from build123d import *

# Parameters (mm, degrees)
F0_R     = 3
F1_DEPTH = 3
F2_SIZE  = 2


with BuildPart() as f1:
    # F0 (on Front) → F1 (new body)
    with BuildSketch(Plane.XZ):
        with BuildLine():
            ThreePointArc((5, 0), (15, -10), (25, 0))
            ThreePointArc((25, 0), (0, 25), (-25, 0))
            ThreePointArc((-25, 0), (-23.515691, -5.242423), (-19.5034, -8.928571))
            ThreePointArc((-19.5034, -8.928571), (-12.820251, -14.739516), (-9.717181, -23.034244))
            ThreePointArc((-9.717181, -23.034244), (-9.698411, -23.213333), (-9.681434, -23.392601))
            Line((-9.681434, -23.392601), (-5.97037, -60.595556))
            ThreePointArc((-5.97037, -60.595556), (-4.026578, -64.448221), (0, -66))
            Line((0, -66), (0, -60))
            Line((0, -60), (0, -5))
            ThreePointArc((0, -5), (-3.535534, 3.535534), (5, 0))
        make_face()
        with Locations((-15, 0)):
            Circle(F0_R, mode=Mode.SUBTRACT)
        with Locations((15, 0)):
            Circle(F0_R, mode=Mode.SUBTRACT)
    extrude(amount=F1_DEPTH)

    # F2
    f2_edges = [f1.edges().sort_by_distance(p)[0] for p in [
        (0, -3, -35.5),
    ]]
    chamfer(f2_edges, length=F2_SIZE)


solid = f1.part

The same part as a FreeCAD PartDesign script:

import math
import FreeCAD as App
import Part
import Sketcher
from FreeCAD import Vector


def edges_at(feature, points):
    """Names of the edges that pass closest to the given points."""
    edges = feature.Shape.Edges
    near = lambda p: min(range(len(edges)), key=lambda i: edges[i].distToShape(Part.Vertex(*p))[0])
    return sorted({f"Edge{near(p) + 1}" for p in points})

doc = App.newDocument("Part")
body = doc.addObject("PartDesign::Body", "Body")

# Sketch on XZ plane
sketch1 = doc.addObject("Sketcher::SketchObject", "Sketch")
body.addObject(sketch1)
sketch1.AttachmentSupport = (doc.XZ_Plane, [""])
sketch1.MapMode = "FlatFace"
sketch1.addGeometry([
    Part.ArcOfCircle(Part.Circle(Vector(15, 0, 0), Vector(0, 0, 1), 10), math.radians(180), math.radians(360)),  # 0
    Part.ArcOfCircle(Part.Circle(Vector(0, 0, 0), Vector(0, 0, 1), 25), math.radians(0), math.radians(180)),  # 1
    Part.ArcOfCircle(Part.Circle(Vector(-15, 0, 0), Vector(0, 0, 1), 10), math.radians(-180), math.radians(-117)),  # 2
    Part.ArcOfCircle(Part.Circle(Vector(-27.61, -25, 0), Vector(0, 0, 1), 18), math.radians(6), math.radians(63)),  # 3
    Part.ArcOfCircle(Part.Circle(Vector(-27.6, -25, 0), Vector(0, 0, 1), 17.99), math.radians(5.12), math.radians(6.27)),  # 4
    Part.LineSegment(Vector(-9.68, -23.39, 0), Vector(-5.97, -60.6, 0)),  # 5
    Part.ArcOfCircle(Part.Circle(Vector(0, -60, 0), Vector(0, 0, 1), 6), math.radians(-174), math.radians(-90)),  # 6
    Part.LineSegment(Vector(0, -66, 0), Vector(0, -5, 0)),  # 7
    Part.ArcOfCircle(Part.Circle(Vector(0, 0, 0), Vector(0, 0, 1), 5), math.radians(0), math.radians(270)),  # 8
    Part.Circle(Vector(-15, 0, 0), Vector(0, 0, 1), 3),  # 9
    Part.Circle(Vector(15, 0, 0), Vector(0, 0, 1), 3),  # 10
], False)
sketch1.addConstraint([
    Sketcher.Constraint("Tangent", 0, 2, 1, 1),
    Sketcher.Constraint("Tangent", 1, 2, 2, 1),
    Sketcher.Constraint("Tangent", 2, 2, 3, 2),
    Sketcher.Constraint("Coincident", 3, 1, 4, 2),
    Sketcher.Constraint("Coincident", 4, 1, 5, 1),
    Sketcher.Constraint("Tangent", 5, 2, 6, 1),
    Sketcher.Constraint("Coincident", 6, 2, 7, 1),
    Sketcher.Constraint("Coincident", 7, 2, 8, 2),
    Sketcher.Constraint("Tangent", 8, 1, 0, 1),
    Sketcher.Constraint("Vertical", 7),
    Sketcher.Constraint("Coincident", 1, 3, -1, 1),
    Sketcher.Constraint("Coincident", 8, 3, -1, 1),
    Sketcher.Constraint("Coincident", 9, 3, 2, 3),
    Sketcher.Constraint("Coincident", 10, 3, 0, 3),
    Sketcher.Constraint("Equal", 0, 2),
    Sketcher.Constraint("Equal", 9, 10),
    Sketcher.Constraint("PointOnObject", 0, 3, -1),
    Sketcher.Constraint("PointOnObject", 2, 3, -1),
    Sketcher.Constraint("PointOnObject", 6, 3, -2),
    Sketcher.Constraint("PointOnObject", 6, 2, -2),
    Sketcher.Constraint("Diameter", 9, 6.0),
    Sketcher.Constraint("Radius", 0, 10.0),
    Sketcher.Constraint("Radius", 1, 25.0),
    Sketcher.Constraint("Radius", 3, 17.999998),
    Sketcher.Constraint("Radius", 6, 6.000001),
    Sketcher.Constraint("DistanceY", 7, 1, 7, 2, 61.0),
    Sketcher.Constraint("DistanceY", 3, 3, -1, 1, 24.999998),
    Sketcher.Constraint("Radius", 4, 17.994882),
    Sketcher.Constraint("DistanceY", 4, 1, -1, 1, 23.392601),
    Sketcher.Constraint("DistanceY", 4, 3, 4, 1, 1.606901),
    Sketcher.Constraint("DistanceX", 3, 1, -1, 1, 9.717181),
])
pad1 = doc.addObject("PartDesign::Pad", "Pad")
body.addObject(pad1)
pad1.Profile = sketch1
pad1.Length = 3
doc.recompute()

chamfer = doc.addObject("PartDesign::Chamfer", "Chamfer")
body.addObject(chamfer)
chamfer.Base = (pad1, edges_at(pad1, [(0, -3, -35.5)]))
chamfer.Size = 2

doc.recompute()
